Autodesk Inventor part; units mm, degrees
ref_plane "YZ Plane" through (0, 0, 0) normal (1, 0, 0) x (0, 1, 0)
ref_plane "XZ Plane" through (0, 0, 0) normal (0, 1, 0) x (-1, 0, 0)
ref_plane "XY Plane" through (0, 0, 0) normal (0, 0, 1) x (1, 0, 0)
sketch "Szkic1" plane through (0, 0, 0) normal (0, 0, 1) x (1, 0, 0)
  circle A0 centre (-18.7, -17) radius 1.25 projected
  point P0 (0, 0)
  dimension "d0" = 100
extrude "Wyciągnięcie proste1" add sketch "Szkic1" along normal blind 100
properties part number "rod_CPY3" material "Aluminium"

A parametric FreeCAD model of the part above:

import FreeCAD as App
import Part
import Sketcher

doc = App.newDocument("Part")
body = doc.addObject("PartDesign::Body", "Body")

sketch1 = body.newObject("Sketcher::SketchObject", "Sketch")
sketch1.AttachmentSupport = (doc.getObject("XY_Plane"), [""])
sketch1.MapMode = "FlatFace"
sketch1.addGeometry(Part.Circle(App.Vector(-18.7, -17, 0), App.Vector(0, 0, 1), 1.2), False)
sketch1.addConstraint(Sketcher.Constraint("Diameter", 0, 2.5))
sketch1.addConstraint(Sketcher.Constraint("DistanceY", 0, 3, -1, 1, 17.0))
sketch1.addConstraint(Sketcher.Constraint("DistanceX", 0, 3, -1, 1, 18.7))
pad1 = body.newObject("PartDesign::Pad", "Pad")
pad1.Profile = sketch1
pad1.Length = 100

doc.recompute()
